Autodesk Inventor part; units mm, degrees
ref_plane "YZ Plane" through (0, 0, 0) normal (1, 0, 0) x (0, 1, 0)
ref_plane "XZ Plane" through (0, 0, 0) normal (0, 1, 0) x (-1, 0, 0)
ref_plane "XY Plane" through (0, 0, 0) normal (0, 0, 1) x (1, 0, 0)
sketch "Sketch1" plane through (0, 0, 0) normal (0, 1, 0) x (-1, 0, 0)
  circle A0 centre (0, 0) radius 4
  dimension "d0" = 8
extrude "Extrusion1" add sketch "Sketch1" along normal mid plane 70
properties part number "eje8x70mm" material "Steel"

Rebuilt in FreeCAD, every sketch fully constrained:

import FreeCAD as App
import Part
import Sketcher
from FreeCAD import Vector
Q = App.Units.Quantity

doc = App.newDocument("Part")
params = doc.addObject("Spreadsheet::Sheet", "Params")
for row, (alias, value) in enumerate([
    ("sketch1_diameter", "8 mm"),
    ("pad1_length", "70 mm"),
], start=1):
    params.set(f"A{row}", alias)
    params.set(f"B{row}", "=" + value)
    params.setAlias(f"B{row}", alias)

body = doc.addObject("PartDesign::Body", "Body")

# Sketch on XZ plane
sketch1 = body.newObject("Sketcher::SketchObject", "Sketch")
sketch1.AttachmentSupport = (doc.getObject("XZ_Plane"), [""])
sketch1.MapMode = "FlatFace"
sketch1.addGeometry(Part.Circle(Vector(0, 0, 0), Vector(0, 0, 1), 4), False)
sketch1.addConstraint(Sketcher.Constraint("Coincident", 0, 3, -1, 1))
sketch1.addConstraint(Sketcher.Constraint("Diameter", 0, Q("8 mm")))
sketch1.setExpression("Constraints[1]", "Params.sketch1_diameter")
pad1 = body.newObject("PartDesign::Pad", "Pad")
pad1.Profile = sketch1
pad1.setExpression("Length", "Params.pad1_length")
pad1.Midplane = True

doc.recompute()
